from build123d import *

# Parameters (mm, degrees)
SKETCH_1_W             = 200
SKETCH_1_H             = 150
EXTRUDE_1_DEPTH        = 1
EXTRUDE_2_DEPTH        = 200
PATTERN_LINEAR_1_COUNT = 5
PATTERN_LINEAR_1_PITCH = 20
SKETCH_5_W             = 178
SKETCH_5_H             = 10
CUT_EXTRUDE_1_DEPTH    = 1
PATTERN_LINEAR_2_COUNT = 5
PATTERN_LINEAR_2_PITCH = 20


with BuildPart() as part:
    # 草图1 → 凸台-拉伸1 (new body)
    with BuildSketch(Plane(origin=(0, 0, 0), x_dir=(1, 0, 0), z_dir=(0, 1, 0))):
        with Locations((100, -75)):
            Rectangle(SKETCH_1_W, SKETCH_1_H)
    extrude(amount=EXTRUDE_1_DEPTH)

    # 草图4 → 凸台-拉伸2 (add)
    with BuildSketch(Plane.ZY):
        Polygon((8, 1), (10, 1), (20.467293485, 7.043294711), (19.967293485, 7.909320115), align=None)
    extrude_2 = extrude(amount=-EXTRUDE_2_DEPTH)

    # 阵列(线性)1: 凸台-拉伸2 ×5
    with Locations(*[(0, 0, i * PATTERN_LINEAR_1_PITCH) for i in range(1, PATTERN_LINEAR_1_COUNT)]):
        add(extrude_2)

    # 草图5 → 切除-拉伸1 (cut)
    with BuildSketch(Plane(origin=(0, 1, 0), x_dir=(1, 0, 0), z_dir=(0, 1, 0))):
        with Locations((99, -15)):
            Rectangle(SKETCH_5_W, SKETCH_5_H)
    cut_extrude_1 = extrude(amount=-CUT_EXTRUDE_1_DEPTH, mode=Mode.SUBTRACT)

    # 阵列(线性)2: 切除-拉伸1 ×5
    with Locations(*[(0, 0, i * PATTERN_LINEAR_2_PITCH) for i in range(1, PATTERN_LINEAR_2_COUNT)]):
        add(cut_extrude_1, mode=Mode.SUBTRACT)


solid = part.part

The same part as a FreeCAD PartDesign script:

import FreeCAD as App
import Part
import Sketcher
from FreeCAD import Vector
Q = App.Units.Quantity

doc = App.newDocument("Part")
body = doc.addObject("PartDesign::Body", "Body")

sketch1 = body.newObject("Sketcher::SketchObject", "Sketch")
sketch1.AttachmentSupport = (doc.getObject("XZ_Plane"), [""])
sketch1.MapMode = "FlatFace"
sketch1.addGeometry(Part.LineSegment(Vector(0, 0, 0), Vector(0, 150, 0)), False)
sketch1.addGeometry(Part.LineSegment(Vector(0, 150, 0), Vector(200, 150, 0)), False)
sketch1.addGeometry(Part.LineSegment(Vector(200, 150, 0), Vector(200, 0, 0)), False)
sketch1.addGeometry(Part.LineSegment(Vector(200, 0, 0), Vector(0, 0, 0)), False)
sketch1.addConstraint(Sketcher.Constraint("Coincident", 0, 2, 1, 1))
sketch1.addConstraint(Sketcher.Constraint("Coincident", 1, 2, 2, 1))
sketch1.addConstraint(Sketcher.Constraint("Coincident", 2, 2, 3, 1))
sketch1.addConstraint(Sketcher.Constraint("Coincident", 3, 2, 0, 1))
sketch1.addConstraint(Sketcher.Constraint("Vertical", 0))
sketch1.addConstraint(Sketcher.Constraint("Horizontal", 1))
sketch1.addConstraint(Sketcher.Constraint("Vertical", 2))
sketch1.addConstraint(Sketcher.Constraint("Horizontal", 3))
sketch1.addConstraint(Sketcher.Constraint("Coincident", 3, 2, -1, 1))
sketch1.addConstraint(Sketcher.Constraint("DistanceX", 1, 1, 1, 2, Q("200 mm")))
sketch1.addConstraint(Sketcher.Constraint("DistanceY", 0, 1, 0, 2, Q("150 mm")))
pad1 = body.newObject("PartDesign::Pad", "Pad")
pad1.Profile = sketch1
pad1.Length = 1
pad1.Reversed = True

sketch2 = body.newObject("Sketcher::SketchObject", "Sketch001")
sketch2.AttachmentSupport = (doc.getObject("YZ_Plane"), [""])
sketch2.MapMode = "FlatFace"
sketch2.addGeometry(Part.LineSegment(Vector(1, 8, 0), Vector(1, 10, 0)), False)
sketch2.addGeometry(Part.LineSegment(Vector(1, 10, 0), Vector(7, 20.5, 0)), False)
sketch2.addGeometry(Part.LineSegment(Vector(7, 20.5, 0), Vector(7.9, 20, 0)), False)
sketch2.addGeometry(Part.LineSegment(Vector(7.9, 20, 0), Vector(1, 8, 0)), False)
sketch2.addConstraint(Sketcher.Constraint("Coincident", 0, 2, 1, 1))
sketch2.addConstraint(Sketcher.Constraint("Coincident", 1, 2, 2, 1))
sketch2.addConstraint(Sketcher.Constraint("Coincident", 2, 2, 3, 1))
sketch2.addConstraint(Sketcher.Constraint("Coincident", 3, 2, 0, 1))
sketch2.addConstraint(Sketcher.Constraint("Vertical", 0))
sketch2.addConstraint(Sketcher.Constraint("Perpendicular", 1, 2))
sketch2.addConstraint(Sketcher.Constraint("Perpendicular", 2, 3))
sketch2.addConstraint(Sketcher.Constraint("DistanceY", 0, 1, 0, 2, Q("2 mm")))
sketch2.addConstraint(Sketcher.Constraint("Angle", 1, Q("60 deg")))
sketch2.addConstraint(Sketcher.Constraint("DistanceX", -1, 1, 0, 2, Q("1 mm")))
sketch2.addConstraint(Sketcher.Constraint("DistanceY", -1, 1, 0, 2, Q("10 mm")))
sketch2.addConstraint(Sketcher.Constraint("Distance", 1, Q("12.086589 mm")))
pad2 = body.newObject("PartDesign::Pad", "Pad001")
pad2.Profile = sketch2
pad2.Length = 200
doc.recompute()

linearpattern = body.newObject("PartDesign::LinearPattern", "LinearPattern")
linearpattern.Originals = [pad2]
linearpattern.Direction = (doc.getObject("Z_Axis"), [""])
linearpattern.Mode = "offset"
linearpattern.Offset = 20
linearpattern.Occurrences = 5
body.Tip = linearpattern

sketch3 = body.newObject("Sketcher::SketchObject", "Sketch002")
sketch3.AttachmentSupport = (doc.getObject("XZ_Plane"), [""])
sketch3.MapMode = "FlatFace"
sketch3.AttachmentOffset = App.Placement(Vector(0, 0, -1), App.Rotation())
sketch3.addGeometry(Part.LineSegment(Vector(10, 10, 0), Vector(10, 20, 0)), False)
sketch3.addGeometry(Part.LineSegment(Vector(10, 20, 0), Vector(188, 20, 0)), False)
sketch3.addGeometry(Part.LineSegment(Vector(188, 20, 0), Vector(188, 10, 0)), False)
sketch3.addGeometry(Part.LineSegment(Vector(188, 10, 0), Vector(10, 10, 0)), False)
sketch3.addConstraint(Sketcher.Constraint("Coincident", 0, 2, 1, 1))
sketch3.addConstraint(Sketcher.Constraint("Coincident", 1, 2, 2, 1))
sketch3.addConstraint(Sketcher.Constraint("Coincident", 2, 2, 3, 1))
sketch3.addConstraint(Sketcher.Constraint("Coincident", 3, 2, 0, 1))
sketch3.addConstraint(Sketcher.Constraint("Vertical", 0))
sketch3.addConstraint(Sketcher.Constraint("Horizontal", 1))
sketch3.addConstraint(Sketcher.Constraint("Vertical", 2))
sketch3.addConstraint(Sketcher.Constraint("Horizontal", 3))
sketch3.addConstraint(Sketcher.Constraint("DistanceX", 1, 1, 1, 2, Q("178 mm")))
sketch3.addConstraint(Sketcher.Constraint("DistanceY", 0, 1, 0, 2, Q("10 mm")))
sketch3.addConstraint(Sketcher.Constraint("DistanceX", -1, 1, 0, 2, Q("10 mm")))
sketch3.addConstraint(Sketcher.Constraint("DistanceY", -1, 1, 0, 2, Q("20 mm")))
pocket1 = body.newObject("PartDesign::Pocket", "Pocket")
pocket1.Profile = sketch3
pocket1.Length = 1
pocket1.Reversed = True
doc.recompute()

linearpattern2 = body.newObject("PartDesign::LinearPattern", "LinearPattern001")
linearpattern2.Originals = [pocket1]
linearpattern2.Direction = (doc.getObject("Z_Axis"), [""])
linearpattern2.Mode = "offset"
linearpattern2.Offset = 20
linearpattern2.Occurrences = 5
body.Tip = linearpattern2

doc.recompute()
